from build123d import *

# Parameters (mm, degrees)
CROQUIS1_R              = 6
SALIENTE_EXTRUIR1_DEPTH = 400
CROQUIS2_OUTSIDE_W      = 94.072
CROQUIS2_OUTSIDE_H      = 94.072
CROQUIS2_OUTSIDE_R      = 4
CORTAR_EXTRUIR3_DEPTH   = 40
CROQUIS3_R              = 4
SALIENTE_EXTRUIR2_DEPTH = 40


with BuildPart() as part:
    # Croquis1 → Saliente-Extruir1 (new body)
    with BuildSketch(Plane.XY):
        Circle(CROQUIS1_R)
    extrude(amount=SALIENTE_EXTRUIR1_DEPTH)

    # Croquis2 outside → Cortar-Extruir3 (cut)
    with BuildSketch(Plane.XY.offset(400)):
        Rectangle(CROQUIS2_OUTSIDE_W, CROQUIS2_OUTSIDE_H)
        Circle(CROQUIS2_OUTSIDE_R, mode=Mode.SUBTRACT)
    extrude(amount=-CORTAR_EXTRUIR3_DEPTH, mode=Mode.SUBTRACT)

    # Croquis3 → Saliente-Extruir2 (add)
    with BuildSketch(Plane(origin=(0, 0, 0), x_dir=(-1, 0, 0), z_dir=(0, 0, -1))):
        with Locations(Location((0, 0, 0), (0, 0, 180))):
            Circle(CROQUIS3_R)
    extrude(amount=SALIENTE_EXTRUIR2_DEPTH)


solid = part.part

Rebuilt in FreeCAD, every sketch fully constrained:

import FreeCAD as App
import Part
import Sketcher
from FreeCAD import Vector
Q = App.Units.Quantity


def add_polygon(sketch, points):
    """Adds a closed chain of lines whose ends are joined by coincident constraints."""
    first, n = sketch.GeometryCount, len(points)
    for a, b in zip(points, points[1:] + points[:1]):
        sketch.addGeometry(Part.LineSegment(App.Vector(*a, 0), App.Vector(*b, 0)), False)
    for i in range(n):
        sketch.addConstraint(Sketcher.Constraint("Coincident", first + i, 2, first + (i + 1) % n, 1))

doc = App.newDocument("Part")
params = doc.addObject("Spreadsheet::Sheet", "Params")
for row, (alias, value) in enumerate([
    ("sketch1_diameter", "12 mm"),
    ("pad1_length", "400 mm"),
    ("sketch2_diameter", "8 mm"),
    ("pocket1_length", "40 mm"),
    ("sketch3_diameter", "8 mm"),
    ("pad2_length", "40 mm"),
], start=1):
    params.set(f"A{row}", alias)
    params.set(f"B{row}", "=" + value)
    params.setAlias(f"B{row}", alias)

body = doc.addObject("PartDesign::Body", "Body")

# Sketch on XY plane
sketch1 = doc.addObject("Sketcher::SketchObject", "Sketch")
body.addObject(sketch1)
sketch1.AttachmentSupport = (doc.XY_Plane, [""])
sketch1.MapMode = "FlatFace"
sketch1.addGeometry(Part.Circle(Vector(0, 0, 0), Vector(0, 0, 1), 6), False)
sketch1.addConstraint(Sketcher.Constraint("Coincident", 0, 3, -1, 1))
sketch1.addConstraint(Sketcher.Constraint("Diameter", 0, Q("12 mm")))
sketch1.setExpression("Constraints[1]", "Params.sketch1_diameter")
pad1 = doc.addObject("PartDesign::Pad", "Pad")
body.addObject(pad1)
pad1.Profile = sketch1
pad1.setExpression("Length", "Params.pad1_length")

# Sketch on XY plane
sketch2 = doc.addObject("Sketcher::SketchObject", "Sketch001")
body.addObject(sketch2)
sketch2.AttachmentSupport = (doc.XY_Plane, [""])
sketch2.MapMode = "FlatFace"
sketch2.AttachmentOffset = App.Placement(Vector(0, 0, 400), App.Rotation())
add_polygon(sketch2, [(-47, 47), (-47, -47), (47, -47), (47, 47)])  # lines 0-3
sketch2.addGeometry(Part.Circle(Vector(0, 0, 0), Vector(0, 0, 1), 4), False)  # 4
sketch2.addConstraint(Sketcher.Constraint("Vertical", 0))
sketch2.addConstraint(Sketcher.Constraint("Horizontal", 1))
sketch2.addConstraint(Sketcher.Constraint("Vertical", 2))
sketch2.addConstraint(Sketcher.Constraint("Horizontal", 3))
sketch2.addConstraint(Sketcher.Constraint("Coincident", 4, 3, -1, 1))
sketch2.addConstraint(Sketcher.Constraint("Symmetric", 0, 2, 2, 2, -1, 1))
sketch2.addConstraint(Sketcher.Constraint("Equal", 3, 0))
sketch2.addConstraint(Sketcher.Constraint("Diameter", 4, Q("8 mm")))
sketch2.addConstraint(Sketcher.Constraint("DistanceX", 1, 1, 1, 2, Q("94.072 mm")))
sketch2.setExpression("Constraints[11]", "Params.sketch2_diameter")
pocket1 = doc.addObject("PartDesign::Pocket", "Pocket")
body.addObject(pocket1)
pocket1.Profile = sketch2
pocket1.setExpression("Length", "Params.pocket1_length")

# Sketch on XY plane
sketch3 = doc.addObject("Sketcher::SketchObject", "Sketch002")
body.addObject(sketch3)
sketch3.AttachmentSupport = (doc.XY_Plane, [""])
sketch3.MapMode = "FlatFace"
sketch3.addGeometry(Part.Circle(Vector(0, 0, 0), Vector(0, 0, 1), 4), False)
sketch3.addConstraint(Sketcher.Constraint("Coincident", 0, 3, -1, 1))
sketch3.addConstraint(Sketcher.Constraint("Diameter", 0, Q("8 mm")))
sketch3.setExpression("Constraints[1]", "Params.sketch3_diameter")
pad2 = doc.addObject("PartDesign::Pad", "Pad001")
body.addObject(pad2)
pad2.Profile = sketch3
pad2.setExpression("Length", "Params.pad2_length")
pad2.Reversed = True

doc.recompute()
